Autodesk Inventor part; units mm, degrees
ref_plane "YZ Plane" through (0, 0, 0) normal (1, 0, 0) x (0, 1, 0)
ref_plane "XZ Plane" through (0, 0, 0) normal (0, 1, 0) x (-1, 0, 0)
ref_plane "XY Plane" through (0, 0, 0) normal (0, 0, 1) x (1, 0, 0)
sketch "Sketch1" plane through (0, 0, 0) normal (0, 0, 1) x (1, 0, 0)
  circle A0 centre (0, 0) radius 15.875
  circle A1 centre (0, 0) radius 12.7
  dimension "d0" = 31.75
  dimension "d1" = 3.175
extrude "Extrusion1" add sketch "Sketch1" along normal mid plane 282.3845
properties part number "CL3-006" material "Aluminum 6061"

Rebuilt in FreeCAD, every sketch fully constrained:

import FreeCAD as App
import Part
import Sketcher

V = App.Vector
Q = App.Units.Quantity

doc = App.newDocument("Part")
body = doc.addObject("PartDesign::Body", "Body")

# Sketch on XY plane
sketch1 = body.newObject("Sketcher::SketchObject", "Sketch")
sketch1.AttachmentSupport = (doc.getObject("XY_Plane"), [""])
sketch1.MapMode = "FlatFace"
sketch1.addGeometry([
    Part.Circle(V(0, 0, 0), V(0, 0, 1), 16),
    Part.Circle(V(0, 0, 0), V(0, 0, 1), 13),
], False)
sketch1.addConstraint([
    Sketcher.Constraint("Coincident", 0, 3, -1, 1),
    Sketcher.Constraint("Coincident", 1, 3, -1, 1),
    Sketcher.Constraint("Diameter", 0, Q("1.25 in")),
    Sketcher.Constraint("Diameter", 1, Q("1 in")),
])
pad1 = body.newObject("PartDesign::Pad", "Pad")
pad1.Profile = sketch1
pad1.Length = Q("11.1175 in")
pad1.Midplane = True

doc.recompute()
